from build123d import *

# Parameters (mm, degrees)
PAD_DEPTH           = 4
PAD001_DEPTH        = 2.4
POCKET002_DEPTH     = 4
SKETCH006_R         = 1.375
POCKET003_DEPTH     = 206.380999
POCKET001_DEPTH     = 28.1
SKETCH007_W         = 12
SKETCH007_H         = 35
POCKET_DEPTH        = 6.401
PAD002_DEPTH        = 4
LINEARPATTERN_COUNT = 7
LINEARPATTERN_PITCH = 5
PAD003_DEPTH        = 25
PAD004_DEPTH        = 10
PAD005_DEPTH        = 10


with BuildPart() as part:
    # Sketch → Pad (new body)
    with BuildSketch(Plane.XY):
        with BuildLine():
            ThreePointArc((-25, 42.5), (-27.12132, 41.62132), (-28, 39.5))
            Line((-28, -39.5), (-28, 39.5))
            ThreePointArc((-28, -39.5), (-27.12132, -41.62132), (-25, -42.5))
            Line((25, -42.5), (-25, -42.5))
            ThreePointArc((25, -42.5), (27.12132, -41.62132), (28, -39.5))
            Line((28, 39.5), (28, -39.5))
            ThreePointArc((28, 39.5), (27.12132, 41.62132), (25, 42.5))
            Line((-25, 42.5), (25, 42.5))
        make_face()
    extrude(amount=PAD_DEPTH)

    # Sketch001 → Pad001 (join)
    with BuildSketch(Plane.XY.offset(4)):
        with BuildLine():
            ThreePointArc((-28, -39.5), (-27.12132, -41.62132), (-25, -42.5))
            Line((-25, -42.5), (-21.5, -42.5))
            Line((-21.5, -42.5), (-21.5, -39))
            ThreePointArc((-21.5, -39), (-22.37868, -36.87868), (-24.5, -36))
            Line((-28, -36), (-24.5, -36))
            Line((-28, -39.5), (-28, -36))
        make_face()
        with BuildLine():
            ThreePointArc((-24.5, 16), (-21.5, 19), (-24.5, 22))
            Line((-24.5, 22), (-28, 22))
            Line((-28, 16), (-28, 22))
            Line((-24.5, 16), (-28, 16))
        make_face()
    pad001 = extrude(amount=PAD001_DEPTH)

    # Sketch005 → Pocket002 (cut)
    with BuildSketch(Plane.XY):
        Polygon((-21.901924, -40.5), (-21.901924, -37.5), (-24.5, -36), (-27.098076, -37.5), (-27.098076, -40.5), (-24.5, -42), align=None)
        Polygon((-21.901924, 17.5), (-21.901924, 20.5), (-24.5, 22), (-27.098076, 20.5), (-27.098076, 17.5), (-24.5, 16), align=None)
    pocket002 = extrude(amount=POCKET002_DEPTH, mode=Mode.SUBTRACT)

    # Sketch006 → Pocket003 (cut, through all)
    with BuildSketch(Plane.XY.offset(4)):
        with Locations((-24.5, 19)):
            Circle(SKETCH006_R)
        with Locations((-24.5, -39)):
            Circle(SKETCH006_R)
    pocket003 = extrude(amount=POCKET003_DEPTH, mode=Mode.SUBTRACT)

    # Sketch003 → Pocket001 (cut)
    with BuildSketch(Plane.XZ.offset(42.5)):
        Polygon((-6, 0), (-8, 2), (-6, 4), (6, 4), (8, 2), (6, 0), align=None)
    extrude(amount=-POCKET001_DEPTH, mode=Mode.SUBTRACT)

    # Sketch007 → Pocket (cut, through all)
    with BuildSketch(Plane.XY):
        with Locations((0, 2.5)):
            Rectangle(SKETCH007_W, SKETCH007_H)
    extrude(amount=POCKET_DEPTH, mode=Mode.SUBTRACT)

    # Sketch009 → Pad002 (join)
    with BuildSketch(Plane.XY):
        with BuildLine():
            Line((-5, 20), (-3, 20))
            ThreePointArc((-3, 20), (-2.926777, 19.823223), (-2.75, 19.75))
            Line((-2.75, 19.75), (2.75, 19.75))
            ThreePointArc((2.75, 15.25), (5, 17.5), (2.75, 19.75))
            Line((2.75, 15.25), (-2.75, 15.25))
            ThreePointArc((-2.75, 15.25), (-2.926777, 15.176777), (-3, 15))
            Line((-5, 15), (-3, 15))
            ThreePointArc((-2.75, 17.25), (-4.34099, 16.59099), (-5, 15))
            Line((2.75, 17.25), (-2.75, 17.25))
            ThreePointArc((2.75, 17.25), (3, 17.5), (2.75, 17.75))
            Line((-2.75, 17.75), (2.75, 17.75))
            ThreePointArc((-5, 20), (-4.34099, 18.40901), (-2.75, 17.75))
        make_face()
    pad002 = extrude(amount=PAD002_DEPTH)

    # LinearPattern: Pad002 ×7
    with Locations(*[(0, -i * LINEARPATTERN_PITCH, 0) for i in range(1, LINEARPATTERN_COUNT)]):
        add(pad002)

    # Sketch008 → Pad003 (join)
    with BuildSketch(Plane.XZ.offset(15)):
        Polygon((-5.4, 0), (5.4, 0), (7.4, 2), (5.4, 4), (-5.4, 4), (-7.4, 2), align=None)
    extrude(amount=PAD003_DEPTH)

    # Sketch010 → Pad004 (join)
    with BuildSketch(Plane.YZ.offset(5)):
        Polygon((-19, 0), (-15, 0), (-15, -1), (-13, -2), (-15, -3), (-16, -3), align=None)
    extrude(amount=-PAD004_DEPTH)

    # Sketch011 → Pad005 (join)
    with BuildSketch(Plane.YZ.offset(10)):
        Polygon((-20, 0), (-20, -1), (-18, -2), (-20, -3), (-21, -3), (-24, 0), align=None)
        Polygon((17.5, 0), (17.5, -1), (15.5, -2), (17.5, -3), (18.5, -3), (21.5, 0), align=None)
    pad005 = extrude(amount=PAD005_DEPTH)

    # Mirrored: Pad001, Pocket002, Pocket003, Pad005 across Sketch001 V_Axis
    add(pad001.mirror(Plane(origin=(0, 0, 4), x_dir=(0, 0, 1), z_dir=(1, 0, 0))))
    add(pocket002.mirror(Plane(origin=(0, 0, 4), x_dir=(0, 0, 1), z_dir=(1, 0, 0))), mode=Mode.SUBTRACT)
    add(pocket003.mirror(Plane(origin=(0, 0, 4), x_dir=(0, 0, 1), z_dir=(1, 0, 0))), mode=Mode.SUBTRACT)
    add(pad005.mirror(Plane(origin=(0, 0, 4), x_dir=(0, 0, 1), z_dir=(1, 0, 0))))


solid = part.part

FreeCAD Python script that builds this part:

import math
import FreeCAD as App
import Part
import Sketcher
Q = App.Units.Quantity

doc = App.newDocument("Part")
params = doc.addObject("Spreadsheet::Sheet", "Params")
for row, (alias, value) in enumerate([
    ("sketch1_radius", "3.000001 mm"),
    ("sketch1_width", "50 mm"),
    ("sketch1_height", "79 mm"),
    ("pad1_length", "4 mm"),
    ("sketch2_radius", "3.000001 mm"),
    ("sketch2_width", "3.5 mm"),
    ("pad2_length", "2.4 mm"),
    ("sketch3_height", "3 mm"),
    ("sketch3_length", "3 mm"),
    ("pocket1_length", "4 mm"),
    ("sketch4_diameter", "2.75 mm"),
    ("sketch5_width", "12 mm"),
    ("pocket3_length", "28.1 mm"),
    ("sketch6_width", "12 mm"),
    ("sketch6_height", "35 mm"),
    ("sketch7_width", "2 mm"),
    ("sketch7_radius", "2.250001 mm"),
    ("sketch7_width2", "5.5 mm"),
    ("pad3_length", "4 mm"),
    ("linearpattern_pitch", "5 mm"),
    ("sketch8_width", "10.8 mm"),
    ("pad4_length", "25 mm"),
    ("sketch9_width", "4 mm"),
    ("sketch9_width2", "1 mm"),
    ("pad5_length", "10 mm"),
    ("sketch10_width", "4 mm"),
    ("sketch10_width2", "1 mm"),
    ("pad6_length", "10 mm"),
], start=1):
    params.set(f"A{row}", alias)
    params.set(f"B{row}", "=" + value)
    params.setAlias(f"B{row}", alias)

body = doc.addObject("PartDesign::Body", "Body")

# Sketch on XY plane
sketch1 = body.newObject("Sketcher::SketchObject", "Sketch")
sketch1.AttachmentSupport = (doc.getObject("XY_Plane"), [""])
sketch1.MapMode = "FlatFace"
sketch1.addGeometry([
    Part.ArcOfCircle(Part.Circle(App.Vector(-24.999999, 39.499999, 0), App.Vector(0, 0, 1), 3.000001), math.radians(90.000022), math.radians(179.999978)),  # 0
    Part.LineSegment(App.Vector(-28, 39.5, 0), App.Vector(-28, -39.5, 0)),  # 1
    Part.ArcOfCircle(Part.Circle(App.Vector(-24.999999, -39.499999, 0), App.Vector(0, 0, 1), 3.000001), math.radians(-179.999978), math.radians(-90.000022)),  # 2
    Part.LineSegment(App.Vector(-25, -42.5, 0), App.Vector(25, -42.5, 0)),  # 3
    Part.ArcOfCircle(Part.Circle(App.Vector(24.999999, -39.499999, 0), App.Vector(0, 0, 1), 3.000001), math.radians(-89.999978), math.radians(-0.000022)),  # 4
    Part.LineSegment(App.Vector(28, -39.5, 0), App.Vector(28, 39.5, 0)),  # 5
    Part.ArcOfCircle(Part.Circle(App.Vector(24.999999, 39.499999, 0), App.Vector(0, 0, 1), 3.000001), math.radians(0.000022), math.radians(89.999978)),  # 6
    Part.LineSegment(App.Vector(25, 42.5, 0), App.Vector(-25, 42.5, 0)),  # 7
], False)
sketch1.addConstraint([
    Sketcher.Constraint("Tangent", 0, 2, 1, 1),
    Sketcher.Constraint("Tangent", 1, 2, 2, 1),
    Sketcher.Constraint("Tangent", 2, 2, 3, 1),
    Sketcher.Constraint("Tangent", 3, 2, 4, 1),
    Sketcher.Constraint("Tangent", 4, 2, 5, 1),
    Sketcher.Constraint("Tangent", 5, 2, 6, 1),
    Sketcher.Constraint("Tangent", 6, 2, 7, 1),
    Sketcher.Constraint("Tangent", 7, 2, 0, 1),
    Sketcher.Constraint("Vertical", 1),
    Sketcher.Constraint("Horizontal", 3),
    Sketcher.Constraint("Vertical", 5),
    Sketcher.Constraint("Horizontal", 7),
    Sketcher.Constraint("Equal", 0, 2),
    Sketcher.Constraint("Equal", 2, 4),
    Sketcher.Constraint("Equal", 4, 6),
    Sketcher.Constraint("Symmetric", 0, 3, 4, 3, -1, 1),
    Sketcher.Constraint("Radius", 0, 3.000001),
    Sketcher.Constraint("DistanceX", 3, 1, 3, 2, 50.0),
    Sketcher.Constraint("DistanceY", 1, 2, 1, 1, 79.0),
])
sketch1.setExpression("Constraints[16]", "Params.sketch1_radius")
sketch1.setExpression("Constraints[17]", "Params.sketch1_width")
sketch1.setExpression("Constraints[18]", "Params.sketch1_height")
pad1 = body.newObject("PartDesign::Pad", "Pad")
pad1.Profile = sketch1
pad1.setExpression("Length", "Params.pad1_length")

# Sketch on XY plane
sketch2 = body.newObject("Sketcher::SketchObject", "Sketch001")
sketch2.AttachmentSupport = (doc.getObject("XY_Plane"), [""])
sketch2.MapMode = "FlatFace"
sketch2.AttachmentOffset = App.Placement(App.Vector(0, 0, 4), App.Rotation())
sketch2.addGeometry([
    Part.ArcOfCircle(Part.Circle(App.Vector(-24.999999, -39.499999, 0), App.Vector(0, 0, 1), 3.000001), math.radians(-179.999978), math.radians(-90.000022)),  # 0
    Part.LineSegment(App.Vector(-25, -42.5, 0), App.Vector(-21.5, -42.5, 0)),  # 1
    Part.LineSegment(App.Vector(-21.5, -42.5, 0), App.Vector(-21.5, -39, 0)),  # 2
    Part.ArcOfCircle(Part.Circle(App.Vector(-24.500001, -39.000001, 0), App.Vector(0, 0, 1), 3.000001), math.radians(0.000022), math.radians(89.999978)),  # 3
    Part.LineSegment(App.Vector(-24.5, -36, 0), App.Vector(-28, -36, 0)),  # 4
    Part.LineSegment(App.Vector(-28, -36, 0), App.Vector(-28, -39.5, 0)),  # 5
    Part.ArcOfCircle(Part.Circle(App.Vector(-24.5, 19, 0), App.Vector(0, 0, 1), 3), math.radians(-90), math.radians(90)),  # 6
    Part.LineSegment(App.Vector(-24.5, 22, 0), App.Vector(-28, 22, 0)),  # 7
    Part.LineSegment(App.Vector(-28, 22, 0), App.Vector(-28, 16, 0)),  # 8
    Part.LineSegment(App.Vector(-28, 16, 0), App.Vector(-24.5, 16, 0)),  # 9
], False)
sketch2.addConstraint([
    Sketcher.Constraint("Tangent", 0, 2, 1, 1),
    Sketcher.Constraint("Coincident", 1, 2, 2, 1),
    Sketcher.Constraint("Tangent", 2, 2, 3, 1),
    Sketcher.Constraint("Tangent", 3, 2, 4, 1),
    Sketcher.Constraint("Coincident", 4, 2, 5, 1),
    Sketcher.Constraint("Tangent", 5, 2, 0, 1),
    Sketcher.Constraint("Tangent", 6, 2, 7, 1),
    Sketcher.Constraint("Coincident", 7, 2, 8, 1),
    Sketcher.Constraint("Coincident", 8, 2, 9, 1),
    Sketcher.Constraint("Tangent", 9, 2, 6, 1),
    Sketcher.Constraint("Horizontal", 1),
    Sketcher.Constraint("Vertical", 2),
    Sketcher.Constraint("Horizontal", 4),
    Sketcher.Constraint("Vertical", 5),
    Sketcher.Constraint("Horizontal", 7),
    Sketcher.Constraint("Vertical", 8),
    Sketcher.Constraint("Horizontal", 9),
    Sketcher.Constraint("Equal", 0, 3),
    Sketcher.Constraint("Equal", 3, 6),
    Sketcher.Constraint("Vertical", 3, 3, 6, 3),
    Sketcher.Constraint("Vertical", 5, 2, 7, 2),
    Sketcher.Constraint("Equal", 9, 2),
    Sketcher.Constraint("Radius", 0, 3.000001),
    Sketcher.Constraint("DistanceX", 1, 1, 1, 2, 3.5),
    Sketcher.Constraint("DistanceX", 0, 3, -1, 1, 24.999999),
    Sketcher.Constraint("DistanceY", 3, 3, -1, 1, 39.000001),
    Sketcher.Constraint("DistanceY", -1, 1, 6, 3, 19.0),
])
sketch2.setExpression("Constraints[22]", "Params.sketch2_radius")
sketch2.setExpression("Constraints[23]", "Params.sketch2_width")
pad2 = body.newObject("PartDesign::Pad", "Pad001")
pad2.Profile = sketch2
pad2.setExpression("Length", "Params.pad2_length")

# Sketch on XY plane
sketch3 = body.newObject("Sketcher::SketchObject", "Sketch002")
sketch3.AttachmentSupport = (doc.getObject("XY_Plane"), [""])
sketch3.MapMode = "FlatFace"
sketch3.addGeometry([
    Part.LineSegment(App.Vector(-21.901924, -40.5, 0), App.Vector(-21.901924, -37.5, 0)),  # 0
    Part.LineSegment(App.Vector(-21.901924, -37.5, 0), App.Vector(-24.5, -36, 0)),  # 1
    Part.LineSegment(App.Vector(-24.5, -36, 0), App.Vector(-27.098076, -37.5, 0)),  # 2
    Part.LineSegment(App.Vector(-27.098076, -37.5, 0), App.Vector(-27.098076, -40.5, 0)),  # 3
    Part.LineSegment(App.Vector(-27.098076, -40.5, 0), App.Vector(-24.5, -42, 0)),  # 4
    Part.LineSegment(App.Vector(-24.5, -42, 0), App.Vector(-21.901924, -40.5, 0)),  # 5
    Part.LineSegment(App.Vector(-21.901924, 17.5, 0), App.Vector(-21.901924, 20.5, 0)),  # 6
    Part.LineSegment(App.Vector(-21.901924, 20.5, 0), App.Vector(-24.5, 22, 0)),  # 7
    Part.LineSegment(App.Vector(-24.5, 22, 0), App.Vector(-27.098076, 20.5, 0)),  # 8
    Part.LineSegment(App.Vector(-27.098076, 20.5, 0), App.Vector(-27.098076, 17.5, 0)),  # 9
    Part.LineSegment(App.Vector(-27.098076, 17.5, 0), App.Vector(-24.5, 16, 0)),  # 10
    Part.LineSegment(App.Vector(-24.5, 16, 0), App.Vector(-21.901924, 17.5, 0)),  # 11
], False)
sketch3.addConstraint([
    Sketcher.Constraint("Coincident", 0, 2, 1, 1),
    Sketcher.Constraint("Coincident", 1, 2, 2, 1),
    Sketcher.Constraint("Coincident", 2, 2, 3, 1),
    Sketcher.Constraint("Coincident", 3, 2, 4, 1),
    Sketcher.Constraint("Coincident", 4, 2, 5, 1),
    Sketcher.Constraint("Coincident", 5, 2, 0, 1),
    Sketcher.Constraint("Coincident", 6, 2, 7, 1),
    Sketcher.Constraint("Coincident", 7, 2, 8, 1),
    Sketcher.Constraint("Coincident", 8, 2, 9, 1),
    Sketcher.Constraint("Coincident", 9, 2, 10, 1),
    Sketcher.Constraint("Coincident", 10, 2, 11, 1),
    Sketcher.Constraint("Coincident", 11, 2, 6, 1),
    Sketcher.Constraint("Vertical", 0),
    Sketcher.Constraint("Vertical", 3),
    Sketcher.Constraint("Vertical", 6),
    Sketcher.Constraint("Vertical", 9),
    Sketcher.Constraint("Parallel", 1, 4),
    Sketcher.Constraint("Parallel", 2, 5),
    Sketcher.Constraint("Parallel", 4, 7),
    Sketcher.Constraint("Parallel", 5, 8),
    Sketcher.Constraint("Parallel", 7, 10),
    Sketcher.Constraint("Parallel", 8, 11),
    Sketcher.Constraint("Horizontal", 0, 2, 2, 2),
    Sketcher.Constraint("Horizontal", 3, 2, 5, 2),
    Sketcher.Constraint("Horizontal", 6, 2, 8, 2),
    Sketcher.Constraint("Horizontal", 9, 2, 11, 2),
    Sketcher.Constraint("Vertical", 1, 2, 4, 2),
    Sketcher.Constraint("Vertical", 5, 2, 6, 2),
    Sketcher.Constraint("Vertical", 4, 2, 7, 2),
    Sketcher.Constraint("Equal", 3, 6),
    Sketcher.Constraint("DistanceY", 0, 1, 0, 2, 3.0),
    Sketcher.Constraint("Angle", 1, Q("149.999998 deg")),
    Sketcher.Constraint("Distance", 1, 3.0),
    Sketcher.Constraint("DistanceY", 1, 2, -1, 1, 36.0),
    Sketcher.Constraint("DistanceY", -1, 1, 7, 2, 22.0),
    Sketcher.Constraint("DistanceX", 1, 2, -1, 1, 24.5),
])
sketch3.setExpression("Constraints[30]", "Params.sketch3_height")
sketch3.setExpression("Constraints[32]", "Params.sketch3_length")
pocket1 = body.newObject("PartDesign::Pocket", "Pocket")
pocket1.Profile = sketch3
pocket1.setExpression("Length", "Params.pocket1_length")
pocket1.Reversed = True

# Sketch on XY plane
sketch4 = body.newObject("Sketcher::SketchObject", "Sketch003")
sketch4.AttachmentSupport = (doc.getObject("XY_Plane"), [""])
sketch4.MapMode = "FlatFace"
sketch4.AttachmentOffset = App.Placement(App.Vector(0, 0, 4), App.Rotation())
sketch4.addGeometry([
    Part.Circle(App.Vector(-24.5, 19, 0), App.Vector(0, 0, 1), 1.375),
    Part.Circle(App.Vector(-24.5, -39, 0), App.Vector(0, 0, 1), 1.375),
], False)
sketch4.addConstraint([
    Sketcher.Constraint("Equal", 0, 1),
    Sketcher.Constraint("Vertical", 0, 3, 1, 3),
    Sketcher.Constraint("Diameter", 0, 2.75),
    Sketcher.Constraint("DistanceY", -1, 1, 0, 3, 19.0),
    Sketcher.Constraint("DistanceY", 1, 3, -1, 1, 39.0),
    Sketcher.Constraint("DistanceX", 0, 3, -1, 1, 24.5),
])
sketch4.setExpression("Constraints[2]", "Params.sketch4_diameter")
pocket2 = body.newObject("PartDesign::Pocket", "Pocket001")
pocket2.Profile = sketch4
pocket2.Type = "ThroughAll"
pocket2.Reversed = True

# Sketch on XZ plane
sketch5 = body.newObject("Sketcher::SketchObject", "Sketch004")
sketch5.AttachmentSupport = (doc.getObject("XZ_Plane"), [""])
sketch5.MapMode = "FlatFace"
sketch5.AttachmentOffset = App.Placement(App.Vector(0, 0, 42.5), App.Rotation())
sketch5.addGeometry([
    Part.LineSegment(App.Vector(-8, 2, 0), App.Vector(-6, 0, 0)),  # 0
    Part.LineSegment(App.Vector(-6, 0, 0), App.Vector(6, 0, 0)),  # 1
    Part.LineSegment(App.Vector(6, 0, 0), App.Vector(8, 2, 0)),  # 2
    Part.LineSegment(App.Vector(8, 2, 0), App.Vector(6, 4, 0)),  # 3
    Part.LineSegment(App.Vector(6, 4, 0), App.Vector(-6, 4, 0)),  # 4
    Part.LineSegment(App.Vector(-6, 4, 0), App.Vector(-8, 2, 0)),  # 5
], False)
sketch5.addConstraint([
    Sketcher.Constraint("Coincident", 0, 2, 1, 1),
    Sketcher.Constraint("Coincident", 1, 2, 2, 1),
    Sketcher.Constraint("Coincident", 2, 2, 3, 1),
    Sketcher.Constraint("Coincident", 3, 2, 4, 1),
    Sketcher.Constraint("Coincident", 4, 2, 5, 1),
    Sketcher.Constraint("Coincident", 5, 2, 0, 1),
    Sketcher.Constraint("Horizontal", 1),
    Sketcher.Constraint("Horizontal", 4),
    Sketcher.Constraint("Symmetric", 0, 2, 1, 2, -1, 1),
    Sketcher.Constraint("Symmetric", 2, 2, 5, 2, -2),
    Sketcher.Constraint("Perpendicular", 0, 2),
    Sketcher.Constraint("Perpendicular", 2, 3),
    Sketcher.Constraint("Perpendicular", 3, 5),
    Sketcher.Constraint("Vertical", 1, 2, 3, 2),
    Sketcher.Constraint("DistanceX", 1, 1, 1, 2, 12.0),
    Sketcher.Constraint("DistanceX", -1, 1, 2, 2, 8.0),
])
sketch5.setExpression("Constraints[14]", "Params.sketch5_width")
pocket3 = body.newObject("PartDesign::Pocket", "Pocket002")
pocket3.Profile = sketch5
pocket3.setExpression("Length", "Params.pocket3_length")

# Sketch on XY plane
sketch6 = body.newObject("Sketcher::SketchObject", "Sketch005")
sketch6.AttachmentSupport = (doc.getObject("XY_Plane"), [""])
sketch6.MapMode = "FlatFace"
sketch6.addGeometry([
    Part.LineSegment(App.Vector(-6, 20, 0), App.Vector(-6, -15, 0)),
    Part.LineSegment(App.Vector(-6, -15, 0), App.Vector(6, -15, 0)),
    Part.LineSegment(App.Vector(6, -15, 0), App.Vector(6, 20, 0)),
    Part.LineSegment(App.Vector(6, 20, 0), App.Vector(-6, 20, 0)),
], False)
sketch6.addConstraint([
    Sketcher.Constraint("Coincident", 0, 2, 1, 1),
    Sketcher.Constraint("Coincident", 1, 2, 2, 1),
    Sketcher.Constraint("Coincident", 2, 2, 3, 1),
    Sketcher.Constraint("Coincident", 3, 2, 0, 1),
    Sketcher.Constraint("Vertical", 0),
    Sketcher.Constraint("Horizontal", 1),
    Sketcher.Constraint("Vertical", 2),
    Sketcher.Constraint("Horizontal", 3),
    Sketcher.Constraint("DistanceX", 1, 1, 1, 2, 12.0),
    Sketcher.Constraint("DistanceY", 0, 2, 0, 1, 35.0),
    Sketcher.Constraint("DistanceX", 0, 2, -1, 1, 6.0),
    Sketcher.Constraint("DistanceY", 0, 2, -1, 1, 15.0),
])
sketch6.setExpression("Constraints[8]", "Params.sketch6_width")
sketch6.setExpression("Constraints[9]", "Params.sketch6_height")
pocket4 = body.newObject("PartDesign::Pocket", "Pocket003")
pocket4.Profile = sketch6
pocket4.Type = "ThroughAll"
pocket4.Reversed = True

# Sketch on XY plane
sketch7 = body.newObject("Sketcher::SketchObject", "Sketch006")
sketch7.AttachmentSupport = (doc.getObject("XY_Plane"), [""])
sketch7.MapMode = "FlatFace"
sketch7.addGeometry([
    Part.LineSegment(App.Vector(-3, 20, 0), App.Vector(-5, 20, 0)),  # 0
    Part.ArcOfCircle(Part.Circle(App.Vector(-2.749999, 20.000001, 0), App.Vector(0, 0, 1), 2.250001), math.radians(-179.999978), math.radians(-90.000022)),  # 1
    Part.LineSegment(App.Vector(-2.75, 17.75, 0), App.Vector(2.75, 17.75, 0)),  # 2
    Part.ArcOfCircle(Part.Circle(App.Vector(2.75, 17.5, 0), App.Vector(0, 0, 1), 0.25), math.radians(-90), math.radians(90)),  # 3
    Part.LineSegment(App.Vector(2.75, 17.25, 0), App.Vector(-2.75, 17.25, 0)),  # 4
    Part.ArcOfCircle(Part.Circle(App.Vector(-2.749999, 14.999999, 0), App.Vector(0, 0, 1), 2.250001), math.radians(90.000022), math.radians(179.999978)),  # 5
    Part.LineSegment(App.Vector(-5, 15, 0), App.Vector(-3, 15, 0)),  # 6
    Part.ArcOfCircle(Part.Circle(App.Vector(-2.750001, 15.000001, 0), App.Vector(0, 0, 1), 0.249999), math.radians(89.999762), math.radians(180.000238)),  # 7
    Part.LineSegment(App.Vector(-2.75, 15.25, 0), App.Vector(2.75, 15.25, 0)),  # 8
    Part.ArcOfCircle(Part.Circle(App.Vector(2.75, 17.5, 0), App.Vector(0, 0, 1), 2.25), math.radians(-90), math.radians(90)),  # 9
    Part.LineSegment(App.Vector(2.75, 19.75, 0), App.Vector(-2.75, 19.75, 0)),  # 10
    Part.ArcOfCircle(Part.Circle(App.Vector(-2.750001, 19.999999, 0), App.Vector(0, 0, 1), 0.249999), math.radians(179.999762), math.radians(270.000238)),  # 11
], False)
sketch7.addConstraint([
    Sketcher.Constraint("Coincident", 0, 2, 1, 1),
    Sketcher.Constraint("Tangent", 1, 2, 2, 1),
    Sketcher.Constraint("Tangent", 2, 2, 3, 2),
    Sketcher.Constraint("Tangent", 3, 1, 4, 1),
    Sketcher.Constraint("Tangent", 4, 2, 5, 1),
    Sketcher.Constraint("Coincident", 5, 2, 6, 1),
    Sketcher.Constraint("Coincident", 6, 2, 7, 2),
    Sketcher.Constraint("Coincident", 7, 1, 8, 1),
    Sketcher.Constraint("Tangent", 8, 2, 9, 1),
    Sketcher.Constraint("Tangent", 9, 2, 10, 1),
    Sketcher.Constraint("Coincident", 10, 2, 11, 2),
    Sketcher.Constraint("Coincident", 11, 1, 0, 1),
    Sketcher.Constraint("Horizontal", 0),
    Sketcher.Constraint("Horizontal", 2),
    Sketcher.Constraint("Horizontal", 4),
    Sketcher.Constraint("Horizontal", 6),
    Sketcher.Constraint("Horizontal", 8),
    Sketcher.Constraint("Horizontal", 10),
    Sketcher.Constraint("Coincident", 7, 3, 5, 3),
    Sketcher.Constraint("Coincident", 9, 3, 3, 3),
    Sketcher.Constraint("Coincident", 11, 3, 1, 3),
    Sketcher.Constraint("Equal", 1, 5),
    Sketcher.Constraint("Equal", 3, 7),
    Sketcher.Constraint("Horizontal", 11, 3, 0, 2),
    Sketcher.Constraint("Horizontal", 7, 3, 5, 2),
    Sketcher.Constraint("Vertical", 1, 3, 5, 3),
    Sketcher.Constraint("Vertical", 4, 2, 7, 1),
    Sketcher.Constraint("Vertical", 7, 1, 10, 2),
    Sketcher.Constraint("DistanceX", 0, 2, 0, 1, 2.0),
    Sketcher.Constraint("Radius", 1, 2.250001),
    Sketcher.Constraint("DistanceX", 2, 1, 2, 2, 5.5),
    Sketcher.Constraint("DistanceY", -1, 1, 1, 3, 20.000001),
    Sketcher.Constraint("DistanceX", 0, 2, -1, 1, 5.0),
])
sketch7.setExpression("Constraints[28]", "Params.sketch7_width")
sketch7.setExpression("Constraints[29]", "Params.sketch7_radius")
sketch7.setExpression("Constraints[30]", "Params.sketch7_width2")
pad3 = body.newObject("PartDesign::Pad", "Pad002")
pad3.Profile = sketch7
pad3.setExpression("Length", "Params.pad3_length")
doc.recompute()

linearpattern = body.newObject("PartDesign::LinearPattern", "LinearPattern")
linearpattern.Originals = [pad3]
linearpattern.Direction = (doc.getObject("Y_Axis"), [""])
linearpattern.Mode = "offset"
linearpattern.setExpression("Offset", "Params.linearpattern_pitch")
linearpattern.Occurrences = 7
linearpattern.Reversed = True
body.Tip = linearpattern

# Sketch on XZ plane
sketch8 = body.newObject("Sketcher::SketchObject", "Sketch007")
sketch8.AttachmentSupport = (doc.getObject("XZ_Plane"), [""])
sketch8.MapMode = "FlatFace"
sketch8.AttachmentOffset = App.Placement(App.Vector(0, 0, 15), App.Rotation())
sketch8.addGeometry([
    Part.LineSegment(App.Vector(-5.4, 0, 0), App.Vector(5.4, 0, 0)),  # 0
    Part.LineSegment(App.Vector(5.4, 0, 0), App.Vector(7.4, 2, 0)),  # 1
    Part.LineSegment(App.Vector(7.4, 2, 0), App.Vector(5.4, 4, 0)),  # 2
    Part.LineSegment(App.Vector(5.4, 4, 0), App.Vector(-5.4, 4, 0)),  # 3
    Part.LineSegment(App.Vector(-5.4, 4, 0), App.Vector(-7.4, 2, 0)),  # 4
    Part.LineSegment(App.Vector(-7.4, 2, 0), App.Vector(-5.4, 0, 0)),  # 5
], False)
sketch8.addConstraint([
    Sketcher.Constraint("Coincident", 0, 2, 1, 1),
    Sketcher.Constraint("Coincident", 1, 2, 2, 1),
    Sketcher.Constraint("Coincident", 2, 2, 3, 1),
    Sketcher.Constraint("Coincident", 3, 2, 4, 1),
    Sketcher.Constraint("Coincident", 4, 2, 5, 1),
    Sketcher.Constraint("Coincident", 5, 2, 0, 1),
    Sketcher.Constraint("Horizontal", 0),
    Sketcher.Constraint("Horizontal", 3),
    Sketcher.Constraint("Symmetric", 0, 2, 5, 2, -1, 1),
    Sketcher.Constraint("Symmetric", 1, 2, 4, 2, -2),
    Sketcher.Constraint("Perpendicular", 1, 2),
    Sketcher.Constraint("Perpendicular", 2, 4),
    Sketcher.Constraint("Perpendicular", 4, 5),
    Sketcher.Constraint("Vertical", 0, 2, 2, 2),
    Sketcher.Constraint("DistanceX", 0, 1, 0, 2, 10.8),
    Sketcher.Constraint("DistanceY", -1, 1, 1, 2, 2.0),
])
sketch8.setExpression("Constraints[14]", "Params.sketch8_width")
pad4 = body.newObject("PartDesign::Pad", "Pad003")
pad4.Profile = sketch8
pad4.setExpression("Length", "Params.pad4_length")

# Sketch on YZ plane
sketch9 = body.newObject("Sketcher::SketchObject", "Sketch008")
sketch9.AttachmentSupport = (doc.getObject("YZ_Plane"), [""])
sketch9.MapMode = "FlatFace"
sketch9.AttachmentOffset = App.Placement(App.Vector(0, 0, 5), App.Rotation())
sketch9.addGeometry([
    Part.LineSegment(App.Vector(-15, 0, 0), App.Vector(-19, 0, 0)),  # 0
    Part.LineSegment(App.Vector(-19, 0, 0), App.Vector(-16, -3, 0)),  # 1
    Part.LineSegment(App.Vector(-16, -3, 0), App.Vector(-15, -3, 0)),  # 2
    Part.LineSegment(App.Vector(-15, -3, 0), App.Vector(-13, -2, 0)),  # 3
    Part.LineSegment(App.Vector(-13, -2, 0), App.Vector(-15, -1, 0)),  # 4
    Part.LineSegment(App.Vector(-15, -1, 0), App.Vector(-15, 0, 0)),  # 5
], False)
sketch9.addConstraint([
    Sketcher.Constraint("Coincident", 0, 2, 1, 1),
    Sketcher.Constraint("Coincident", 1, 2, 2, 1),
    Sketcher.Constraint("Coincident", 2, 2, 3, 1),
    Sketcher.Constraint("Coincident", 3, 2, 4, 1),
    Sketcher.Constraint("Coincident", 4, 2, 5, 1),
    Sketcher.Constraint("Coincident", 5, 2, 0, 1),
    Sketcher.Constraint("Horizontal", 0),
    Sketcher.Constraint("Horizontal", 2),
    Sketcher.Constraint("Vertical", 5),
    Sketcher.Constraint("PointOnObject", 0, 2, -1),
    Sketcher.Constraint("Vertical", 2, 2, 4, 2),
    Sketcher.Constraint("Equal", 2, 5),
    Sketcher.Constraint("Equal", 3, 4),
    Sketcher.Constraint("DistanceX", 0, 2, 0, 1, 4.0),
    Sketcher.Constraint("DistanceX", 2, 1, 2, 2, 1.0),
    Sketcher.Constraint("Angle", 1, Q("-45 deg")),
    Sketcher.Constraint("DistanceX", 0, 2, -1, 1, 19.0),
    Sketcher.Constraint("DistanceX", 3, 2, -1, 1, 13.0),
])
sketch9.setExpression("Constraints[13]", "Params.sketch9_width")
sketch9.setExpression("Constraints[14]", "Params.sketch9_width2")
pad5 = body.newObject("PartDesign::Pad", "Pad004")
pad5.Profile = sketch9
pad5.setExpression("Length", "Params.pad5_length")
pad5.Reversed = True

# Sketch on YZ plane
sketch10 = body.newObject("Sketcher::SketchObject", "Sketch009")
sketch10.AttachmentSupport = (doc.getObject("YZ_Plane"), [""])
sketch10.MapMode = "FlatFace"
sketch10.AttachmentOffset = App.Placement(App.Vector(0, 0, 10), App.Rotation())
sketch10.addGeometry([
    Part.LineSegment(App.Vector(-20, -1, 0), App.Vector(-20, 0, 0)),  # 0
    Part.LineSegment(App.Vector(-20, 0, 0), App.Vector(-24, 0, 0)),  # 1
    Part.LineSegment(App.Vector(-24, 0, 0), App.Vector(-21, -3, 0)),  # 2
    Part.LineSegment(App.Vector(-21, -3, 0), App.Vector(-20, -3, 0)),  # 3
    Part.LineSegment(App.Vector(-20, -3, 0), App.Vector(-18, -2, 0)),  # 4
    Part.LineSegment(App.Vector(-18, -2, 0), App.Vector(-20, -1, 0)),  # 5
    Part.LineSegment(App.Vector(17.5, 0, 0), App.Vector(17.5, -1, 0)),  # 6
    Part.LineSegment(App.Vector(17.5, -1, 0), App.Vector(15.5, -2, 0)),  # 7
    Part.LineSegment(App.Vector(15.5, -2, 0), App.Vector(17.5, -3, 0)),  # 8
    Part.LineSegment(App.Vector(17.5, -3, 0), App.Vector(18.5, -3, 0)),  # 9
    Part.LineSegment(App.Vector(18.5, -3, 0), App.Vector(21.5, 0, 0)),  # 10
    Part.LineSegment(App.Vector(21.5, 0, 0), App.Vector(17.5, 0, 0)),  # 11
], False)
sketch10.addConstraint([
    Sketcher.Constraint("Coincident", 0, 2, 1, 1),
    Sketcher.Constraint("Coincident", 1, 2, 2, 1),
    Sketcher.Constraint("Coincident", 2, 2, 3, 1),
    Sketcher.Constraint("Coincident", 3, 2, 4, 1),
    Sketcher.Constraint("Coincident", 4, 2, 5, 1),
    Sketcher.Constraint("Coincident", 5, 2, 0, 1),
    Sketcher.Constraint("Coincident", 6, 2, 7, 1),
    Sketcher.Constraint("Coincident", 7, 2, 8, 1),
    Sketcher.Constraint("Coincident", 8, 2, 9, 1),
    Sketcher.Constraint("Coincident", 9, 2, 10, 1),
    Sketcher.Constraint("Coincident", 10, 2, 11, 1),
    Sketcher.Constraint("Coincident", 11, 2, 6, 1),
    Sketcher.Constraint("Vertical", 0),
    Sketcher.Constraint("Horizontal", 1),
    Sketcher.Constraint("Horizontal", 3),
    Sketcher.Constraint("Vertical", 6),
    Sketcher.Constraint("Horizontal", 9),
    Sketcher.Constraint("Horizontal", 11),
    Sketcher.Constraint("PointOnObject", 0, 2, -1),
    Sketcher.Constraint("PointOnObject", 10, 2, -1),
    Sketcher.Constraint("Parallel", 4, 7),
    Sketcher.Constraint("Parallel", 5, 8),
    Sketcher.Constraint("Perpendicular", 2, 10),
    Sketcher.Constraint("Horizontal", 5, 2, 6, 2),
    Sketcher.Constraint("Horizontal", 4, 2, 7, 2),
    Sketcher.Constraint("Horizontal", 3, 2, 8, 2),
    Sketcher.Constraint("Vertical", 0, 2, 3, 2),
    Sketcher.Constraint("Vertical", 6, 2, 8, 2),
    Sketcher.Constraint("Equal", 3, 9),
    Sketcher.Constraint("Equal", 1, 11),
    Sketcher.Constraint("Equal", 9, 0),
    Sketcher.Constraint("DistanceX", 1, 2, 1, 1, 4.0),
    Sketcher.Constraint("DistanceX", 3, 1, 3, 2, 1.0),
    Sketcher.Constraint("DistanceX", 0, 2, -1, 1, 20.0),
    Sketcher.Constraint("DistanceX", 4, 2, -1, 1, 18.0),
    Sketcher.Constraint("DistanceX", -1, 1, 6, 2, 17.5),
])
sketch10.setExpression("Constraints[31]", "Params.sketch10_width")
sketch10.setExpression("Constraints[32]", "Params.sketch10_width2")
pad6 = body.newObject("PartDesign::Pad", "Pad005")
pad6.Profile = sketch10
pad6.setExpression("Length", "Params.pad6_length")
doc.recompute()

mirrored = body.newObject("PartDesign::Mirrored", "Mirrored")
mirrored.Originals = [pad2, pocket1, pocket2, pad6]
mirrored.MirrorPlane = (doc.getObject("YZ_Plane"), [""])
body.Tip = mirrored

doc.recompute()
